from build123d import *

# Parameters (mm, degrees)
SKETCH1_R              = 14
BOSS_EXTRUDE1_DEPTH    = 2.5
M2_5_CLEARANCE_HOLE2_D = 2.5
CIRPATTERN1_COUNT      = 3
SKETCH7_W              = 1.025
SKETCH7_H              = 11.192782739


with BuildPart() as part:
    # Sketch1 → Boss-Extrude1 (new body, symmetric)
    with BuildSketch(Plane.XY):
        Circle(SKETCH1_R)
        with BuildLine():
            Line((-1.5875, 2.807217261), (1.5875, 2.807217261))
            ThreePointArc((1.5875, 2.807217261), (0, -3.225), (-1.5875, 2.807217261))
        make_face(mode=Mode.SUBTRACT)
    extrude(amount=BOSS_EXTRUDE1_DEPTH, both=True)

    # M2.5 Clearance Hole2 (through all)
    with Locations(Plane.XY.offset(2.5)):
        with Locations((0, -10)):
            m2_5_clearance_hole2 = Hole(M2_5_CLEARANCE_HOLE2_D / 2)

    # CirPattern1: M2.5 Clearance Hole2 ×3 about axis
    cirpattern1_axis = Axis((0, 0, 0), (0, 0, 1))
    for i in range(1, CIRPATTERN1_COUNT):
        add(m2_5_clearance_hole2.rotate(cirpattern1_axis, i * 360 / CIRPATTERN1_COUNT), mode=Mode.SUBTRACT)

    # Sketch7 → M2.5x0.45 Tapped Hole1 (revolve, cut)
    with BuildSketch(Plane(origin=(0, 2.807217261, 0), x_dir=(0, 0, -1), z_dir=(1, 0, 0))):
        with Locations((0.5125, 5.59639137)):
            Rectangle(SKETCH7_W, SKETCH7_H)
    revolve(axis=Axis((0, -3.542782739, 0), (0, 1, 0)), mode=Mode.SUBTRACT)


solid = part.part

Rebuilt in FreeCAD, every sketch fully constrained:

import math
import FreeCAD as App
import Part
import Sketcher
from FreeCAD import Vector


def add_polygon(sketch, points):
    """Adds a closed chain of lines whose ends are joined by coincident constraints."""
    first, n = sketch.GeometryCount, len(points)
    for a, b in zip(points, points[1:] + points[:1]):
        sketch.addGeometry(Part.LineSegment(App.Vector(*a, 0), App.Vector(*b, 0)), False)
    for i in range(n):
        sketch.addConstraint(Sketcher.Constraint("Coincident", first + i, 2, first + (i + 1) % n, 1))

doc = App.newDocument("Part")
body = doc.addObject("PartDesign::Body", "Body")

sketch1 = body.newObject("Sketcher::SketchObject", "Sketch")
sketch1.AttachmentSupport = (doc.getObject("XY_Plane"), [""])
sketch1.MapMode = "FlatFace"
sketch1.addGeometry(Part.Circle(Vector(0, 0, 0), Vector(0, 0, 1), 14), False)
sketch1.addGeometry(Part.ArcOfCircle(Part.Circle(Vector(0, 0, 0), Vector(0, 0, 1), 3.2), math.radians(119), math.radians(421)), False)
sketch1.addGeometry(Part.LineSegment(Vector(-1.6, 2.8, 0), Vector(1.6, 2.8, 0)), False)
sketch1.addConstraint(Sketcher.Constraint("Coincident", 1, 1, 2, 1))
sketch1.addConstraint(Sketcher.Constraint("Coincident", 2, 2, 1, 2))
sketch1.addConstraint(Sketcher.Constraint("Horizontal", 2))
sketch1.addConstraint(Sketcher.Constraint("Coincident", 0, 3, -1, 1))
sketch1.addConstraint(Sketcher.Constraint("Coincident", 1, 3, -1, 1))
sketch1.addConstraint(Sketcher.Constraint("Diameter", 0, 28.0))
sketch1.addConstraint(Sketcher.Constraint("Radius", 1, 3.225))
sketch1.addConstraint(Sketcher.Constraint("DistanceX", 2, 1, 2, 2, 3.175))
pad1 = body.newObject("PartDesign::Pad", "Pad")
pad1.Profile = sketch1
pad1.Length = 5
pad1.Midplane = True

sketch2 = body.newObject("Sketcher::SketchObject", "Sketch001")
sketch2.AttachmentSupport = (doc.getObject("XY_Plane"), [""])
sketch2.MapMode = "FlatFace"
sketch2.AttachmentOffset = App.Placement(Vector(0, 0, 2.5), App.Rotation())
sketch2.addGeometry(Part.Circle(Vector(0, -10, 0), Vector(0, 0, 1), 1.2), False)
sketch2.addConstraint(Sketcher.Constraint("PointOnObject", 0, 3, -2))
sketch2.addConstraint(Sketcher.Constraint("Diameter", 0, 2.5))
sketch2.addConstraint(Sketcher.Constraint("DistanceY", 0, 3, -1, 1, 10.0))
doc.recompute()
hole = body.newObject("PartDesign::Hole", "Hole")
hole.Profile = sketch2
hole.ThreadType = "None"
hole.Diameter = 2.5
hole.DepthType = "ThroughAll"
doc.recompute()

polarpattern = body.newObject("PartDesign::PolarPattern", "PolarPattern")
polarpattern.Originals = [hole]
polarpattern.Axis = (doc.getObject("Z_Axis"), [""])
polarpattern.Angle = 360
polarpattern.Occurrences = 3
body.Tip = polarpattern

sketch3 = body.newObject("Sketcher::SketchObject", "Sketch002")
sketch3.AttachmentSupport = (doc.getObject("YZ_Plane"), [""])
sketch3.MapMode = "FlatFace"
add_polygon(sketch3, [(14, 0), (2.8, 0), (2.8, -1), (14, -1)])
sketch3.addConstraint(Sketcher.Constraint("Horizontal", 0))
sketch3.addConstraint(Sketcher.Constraint("Vertical", 1))
sketch3.addConstraint(Sketcher.Constraint("Horizontal", 2))
sketch3.addConstraint(Sketcher.Constraint("Vertical", 3))
sketch3.addConstraint(Sketcher.Constraint("PointOnObject", 0, 2, -1))
sketch3.addConstraint(Sketcher.Constraint("DistanceX", -1, 1, 2, 2, 14.0))
sketch3.addConstraint(Sketcher.Constraint("DistanceY", 1, 2, 1, 1, 1.025))
sketch3.addConstraint(Sketcher.Constraint("DistanceX", 0, 2, 0, 1, 11.192783))
groove = body.newObject("PartDesign::Groove", "Groove")
groove.Profile = sketch3
groove.ReferenceAxis = (sketch3, ["H_Axis"])
groove.Angle = 360

doc.recompute()
